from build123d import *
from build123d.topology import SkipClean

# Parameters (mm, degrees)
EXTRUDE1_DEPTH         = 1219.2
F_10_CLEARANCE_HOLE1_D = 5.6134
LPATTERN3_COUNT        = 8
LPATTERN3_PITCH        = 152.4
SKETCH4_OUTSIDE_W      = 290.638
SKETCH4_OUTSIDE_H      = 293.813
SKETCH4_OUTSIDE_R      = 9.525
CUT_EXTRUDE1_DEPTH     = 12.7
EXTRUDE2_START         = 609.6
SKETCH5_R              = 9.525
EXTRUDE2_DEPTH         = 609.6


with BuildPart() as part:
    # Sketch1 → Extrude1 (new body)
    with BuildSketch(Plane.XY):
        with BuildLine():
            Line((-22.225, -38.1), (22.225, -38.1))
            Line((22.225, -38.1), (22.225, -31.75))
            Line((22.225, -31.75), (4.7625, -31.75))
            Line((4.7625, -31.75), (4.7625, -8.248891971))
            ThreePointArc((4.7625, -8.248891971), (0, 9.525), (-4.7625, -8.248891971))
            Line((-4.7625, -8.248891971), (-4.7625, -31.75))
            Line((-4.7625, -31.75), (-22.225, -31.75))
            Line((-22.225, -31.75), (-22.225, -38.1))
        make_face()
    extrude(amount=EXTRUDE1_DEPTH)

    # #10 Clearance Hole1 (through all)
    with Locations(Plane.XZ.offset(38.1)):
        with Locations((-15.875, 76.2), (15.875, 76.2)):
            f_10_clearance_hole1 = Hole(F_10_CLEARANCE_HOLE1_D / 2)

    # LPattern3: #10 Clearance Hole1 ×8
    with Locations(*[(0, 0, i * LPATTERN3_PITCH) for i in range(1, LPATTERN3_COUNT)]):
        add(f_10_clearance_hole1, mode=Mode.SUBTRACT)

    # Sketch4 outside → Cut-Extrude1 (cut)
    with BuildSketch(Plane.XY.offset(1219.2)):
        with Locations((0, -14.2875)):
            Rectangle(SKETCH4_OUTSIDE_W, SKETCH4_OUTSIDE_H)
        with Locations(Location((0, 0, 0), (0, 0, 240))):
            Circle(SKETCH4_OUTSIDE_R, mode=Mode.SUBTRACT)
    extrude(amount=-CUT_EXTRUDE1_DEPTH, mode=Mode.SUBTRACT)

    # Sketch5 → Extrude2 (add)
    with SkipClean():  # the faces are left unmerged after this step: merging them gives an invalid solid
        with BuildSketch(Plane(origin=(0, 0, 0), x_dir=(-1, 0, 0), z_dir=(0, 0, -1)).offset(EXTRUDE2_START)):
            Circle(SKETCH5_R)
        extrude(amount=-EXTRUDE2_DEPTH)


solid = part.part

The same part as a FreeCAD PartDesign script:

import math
import FreeCAD as App
import Part
import Sketcher
Q = App.Units.Quantity


def add_polygon(sketch, points):
    """Adds a closed chain of lines whose ends are joined by coincident constraints."""
    first, n = sketch.GeometryCount, len(points)
    for a, b in zip(points, points[1:] + points[:1]):
        sketch.addGeometry(Part.LineSegment(App.Vector(*a, 0), App.Vector(*b, 0)), False)
    for i in range(n):
        sketch.addConstraint(Sketcher.Constraint("Coincident", first + i, 2, first + (i + 1) % n, 1))

doc = App.newDocument("Part")
body = doc.addObject("PartDesign::Body", "Body")

# Sketch on XY plane
sketch1 = body.newObject("Sketcher::SketchObject", "Sketch")
sketch1.AttachmentSupport = (doc.getObject("XY_Plane"), [""])
sketch1.MapMode = "FlatFace"
sketch1.addGeometry([
    Part.LineSegment(App.Vector(-22, -38, 0), App.Vector(22, -38, 0)),  # 0
    Part.LineSegment(App.Vector(22, -38, 0), App.Vector(22, -32, 0)),  # 1
    Part.LineSegment(App.Vector(22, -32, 0), App.Vector(5, -32, 0)),  # 2
    Part.LineSegment(App.Vector(5, -32, 0), App.Vector(5, -8, 0)),  # 3
    Part.ArcOfCircle(Part.Circle(App.Vector(0, 0, 0), App.Vector(0, 0, 1), 10), math.radians(-60), math.radians(240)),  # 4
    Part.LineSegment(App.Vector(-5, -8, 0), App.Vector(-5, -32, 0)),  # 5
    Part.LineSegment(App.Vector(-5, -32, 0), App.Vector(-22, -32, 0)),  # 6
    Part.LineSegment(App.Vector(-22, -32, 0), App.Vector(-22, -38, 0)),  # 7
], False)
sketch1.addConstraint([
    Sketcher.Constraint("Coincident", 0, 2, 1, 1),
    Sketcher.Constraint("Coincident", 1, 2, 2, 1),
    Sketcher.Constraint("Coincident", 2, 2, 3, 1),
    Sketcher.Constraint("Coincident", 3, 2, 4, 1),
    Sketcher.Constraint("Coincident", 4, 2, 5, 1),
    Sketcher.Constraint("Coincident", 5, 2, 6, 1),
    Sketcher.Constraint("Coincident", 6, 2, 7, 1),
    Sketcher.Constraint("Coincident", 7, 2, 0, 1),
    Sketcher.Constraint("Horizontal", 0),
    Sketcher.Constraint("Vertical", 1),
    Sketcher.Constraint("Horizontal", 2),
    Sketcher.Constraint("Vertical", 3),
    Sketcher.Constraint("Vertical", 5),
    Sketcher.Constraint("Horizontal", 6),
    Sketcher.Constraint("Vertical", 7),
    Sketcher.Constraint("Coincident", 4, 3, -1, 1),
    Sketcher.Constraint("Symmetric", 2, 2, 5, 2, -2),
    Sketcher.Constraint("Equal", 2, 6),
    Sketcher.Constraint("Radius", 4, Q("0.375 in")),
    Sketcher.Constraint("DistanceX", 0, 1, 0, 2, Q("1.75 in")),
    Sketcher.Constraint("DistanceY", 1, 1, 1, 2, Q("0.25 in")),
    Sketcher.Constraint("DistanceY", 0, 2, -1, 1, Q("1.5 in")),
    Sketcher.Constraint("DistanceX", 2, 2, 2, 1, Q("0.6875 in")),
])
pad1 = body.newObject("PartDesign::Pad", "Pad")
pad1.Profile = sketch1
pad1.Length = Q("48 in")

# Sketch on XZ plane
sketch2 = body.newObject("Sketcher::SketchObject", "Sketch001")
sketch2.AttachmentSupport = (doc.getObject("XZ_Plane"), [""])
sketch2.MapMode = "FlatFace"
sketch2.AttachmentOffset = App.Placement(App.Vector(0, 0, 1.5 * 25.4), App.Rotation())
sketch2.addGeometry([
    Part.Circle(App.Vector(-15.9, 76.2, 0), App.Vector(0, 0, 1), 2.8),
    Part.Circle(App.Vector(15.9, 76.2, 0), App.Vector(0, 0, 1), 2.8),
], False)
sketch2.addConstraint([
    Sketcher.Constraint("Equal", 0, 1),
    Sketcher.Constraint("Symmetric", 0, 3, 1, 3, -2),
    Sketcher.Constraint("Diameter", 0, Q("0.221 in")),
    Sketcher.Constraint("DistanceY", -1, 1, 0, 3, Q("3 in")),
    Sketcher.Constraint("DistanceX", 0, 3, 1, 3, Q("1.25 in")),
])
doc.recompute()
hole = body.newObject("PartDesign::Hole", "Hole")
hole.Profile = sketch2
hole.ThreadType = "None"
hole.Diameter = Q("0.221 in")
hole.DepthType = "ThroughAll"
doc.recompute()

linearpattern = body.newObject("PartDesign::LinearPattern", "LinearPattern")
linearpattern.Originals = [hole]
linearpattern.Direction = (doc.getObject("Z_Axis"), [""])
linearpattern.Mode = "offset"
linearpattern.Offset = Q("6 in")
linearpattern.Occurrences = 8
body.Tip = linearpattern

# Sketch on XY plane
sketch3 = body.newObject("Sketcher::SketchObject", "Sketch002")
sketch3.AttachmentSupport = (doc.getObject("XY_Plane"), [""])
sketch3.MapMode = "FlatFace"
sketch3.AttachmentOffset = App.Placement(App.Vector(0, 0, 48 * 25.4), App.Rotation())
add_polygon(sketch3, [(-145, 133), (-145, -161), (145, -161), (145, 133)])  # lines 0-3
sketch3.addGeometry(Part.Circle(App.Vector(0, 0, 0), App.Vector(0, 0, 1), 10), False)  # 4
sketch3.addConstraint([
    Sketcher.Constraint("Vertical", 0),
    Sketcher.Constraint("Horizontal", 1),
    Sketcher.Constraint("Vertical", 2),
    Sketcher.Constraint("Horizontal", 3),
    Sketcher.Constraint("Coincident", 4, 3, -1, 1),
    Sketcher.Constraint("Diameter", 4, Q("0.75 in")),
    Sketcher.Constraint("DistanceX", 1, 1, 1, 2, 290.638),
    Sketcher.Constraint("DistanceY", 0, 2, 0, 1, 293.813),
    Sketcher.Constraint("DistanceX", 0, 2, -1, 1, 145.319),
    Sketcher.Constraint("DistanceY", 0, 2, -1, 1, 161.194),
])
pocket1 = body.newObject("PartDesign::Pocket", "Pocket")
pocket1.Profile = sketch3
pocket1.Length = Q("0.5 in")

# Sketch on XY plane
sketch4 = body.newObject("Sketcher::SketchObject", "Sketch003")
sketch4.AttachmentSupport = (doc.getObject("XY_Plane"), [""])
sketch4.MapMode = "FlatFace"
sketch4.AttachmentOffset = App.Placement(App.Vector(0, 0, -24 * 25.4), App.Rotation())
sketch4.addGeometry(Part.Circle(App.Vector(0, 0, 0), App.Vector(0, 0, 1), 10), False)
sketch4.addConstraint([
    Sketcher.Constraint("Coincident", 0, 3, -1, 1),
    Sketcher.Constraint("Diameter", 0, Q("0.75 in")),
])
pad2 = body.newObject("PartDesign::Pad", "Pad001")
pad2.Profile = sketch4
pad2.Length = Q("24 in")

doc.recompute()
